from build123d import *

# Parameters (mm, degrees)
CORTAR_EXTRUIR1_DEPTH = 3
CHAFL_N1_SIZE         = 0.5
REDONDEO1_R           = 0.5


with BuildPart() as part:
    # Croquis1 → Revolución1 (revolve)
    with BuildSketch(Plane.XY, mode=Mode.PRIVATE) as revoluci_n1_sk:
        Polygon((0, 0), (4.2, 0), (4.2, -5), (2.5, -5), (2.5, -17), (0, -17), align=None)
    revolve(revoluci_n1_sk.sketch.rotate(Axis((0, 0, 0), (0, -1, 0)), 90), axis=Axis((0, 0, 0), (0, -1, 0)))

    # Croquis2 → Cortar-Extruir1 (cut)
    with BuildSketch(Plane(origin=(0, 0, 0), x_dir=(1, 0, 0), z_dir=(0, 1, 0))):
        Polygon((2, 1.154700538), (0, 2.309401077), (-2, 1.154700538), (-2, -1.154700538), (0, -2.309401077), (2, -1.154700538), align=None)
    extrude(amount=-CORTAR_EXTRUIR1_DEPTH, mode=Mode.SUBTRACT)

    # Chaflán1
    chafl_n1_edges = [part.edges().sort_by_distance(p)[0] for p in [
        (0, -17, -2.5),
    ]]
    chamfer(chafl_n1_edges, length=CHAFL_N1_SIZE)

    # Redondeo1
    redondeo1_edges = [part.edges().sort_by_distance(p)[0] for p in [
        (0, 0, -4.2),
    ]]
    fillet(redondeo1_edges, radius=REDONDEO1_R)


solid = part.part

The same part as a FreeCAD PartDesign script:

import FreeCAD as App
import Part
import Sketcher
Q = App.Units.Quantity


def edges_at(feature, points):
    """Names of the edges that pass closest to the given points."""
    edges = feature.Shape.Edges
    near = lambda p: min(range(len(edges)), key=lambda i: edges[i].distToShape(Part.Vertex(*p))[0])
    return sorted({f"Edge{near(p) + 1}" for p in points})

doc = App.newDocument("Part")
params = doc.addObject("Spreadsheet::Sheet", "Params")
for row, (alias, value) in enumerate([
    ("sketch1_height", "17 mm"),
    ("sketch1_height2", "12 mm"),
    ("sketch1_width", "4.2 mm"),
    ("sketch1_width2", "2.5 mm"),
    ("revolution_angle", "360 deg"),
    ("pocket1_length", "3 mm"),
    ("chamfer_size", "0.5 mm"),
    ("fillet_radius", "0.5 mm"),
], start=1):
    params.set(f"A{row}", alias)
    params.set(f"B{row}", "=" + value)
    params.setAlias(f"B{row}", alias)

body = doc.addObject("PartDesign::Body", "Body")

sketch1 = body.newObject("Sketcher::SketchObject", "Sketch")
sketch1.AttachmentSupport = (doc.getObject("XY_Plane"), [""])
sketch1.MapMode = "FlatFace"
sketch1.addGeometry(Part.LineSegment(App.Vector(4.2, 0, 0), App.Vector(0, 0, 0)), False)
sketch1.addGeometry(Part.LineSegment(App.Vector(0, 0, 0), App.Vector(0, -17, 0)), False)
sketch1.addGeometry(Part.LineSegment(App.Vector(0, -17, 0), App.Vector(2.5, -17, 0)), False)
sketch1.addGeometry(Part.LineSegment(App.Vector(2.5, -17, 0), App.Vector(2.5, -5, 0)), False)
sketch1.addGeometry(Part.LineSegment(App.Vector(2.5, -5, 0), App.Vector(4.2, -5, 0)), False)
sketch1.addGeometry(Part.LineSegment(App.Vector(4.2, -5, 0), App.Vector(4.2, 0, 0)), False)
sketch1.addConstraint(Sketcher.Constraint("Coincident", 0, 2, 1, 1))
sketch1.addConstraint(Sketcher.Constraint("Coincident", 1, 2, 2, 1))
sketch1.addConstraint(Sketcher.Constraint("Coincident", 2, 2, 3, 1))
sketch1.addConstraint(Sketcher.Constraint("Coincident", 3, 2, 4, 1))
sketch1.addConstraint(Sketcher.Constraint("Coincident", 4, 2, 5, 1))
sketch1.addConstraint(Sketcher.Constraint("Coincident", 5, 2, 0, 1))
sketch1.addConstraint(Sketcher.Constraint("Horizontal", 0))
sketch1.addConstraint(Sketcher.Constraint("Vertical", 1))
sketch1.addConstraint(Sketcher.Constraint("Horizontal", 2))
sketch1.addConstraint(Sketcher.Constraint("Vertical", 3))
sketch1.addConstraint(Sketcher.Constraint("Horizontal", 4))
sketch1.addConstraint(Sketcher.Constraint("Vertical", 5))
sketch1.addConstraint(Sketcher.Constraint("Coincident", 0, 2, -1, 1))
sketch1.addConstraint(Sketcher.Constraint("DistanceY", 1, 2, 1, 1, Q("17 mm")))
sketch1.addConstraint(Sketcher.Constraint("DistanceY", 3, 1, 3, 2, Q("12 mm")))
sketch1.addConstraint(Sketcher.Constraint("DistanceX", 0, 2, 0, 1, Q("4.2 mm")))
sketch1.addConstraint(Sketcher.Constraint("DistanceX", 2, 1, 2, 2, Q("2.5 mm")))
sketch1.setExpression("Constraints[13]", "Params.sketch1_height")
sketch1.setExpression("Constraints[14]", "Params.sketch1_height2")
sketch1.setExpression("Constraints[15]", "Params.sketch1_width")
sketch1.setExpression("Constraints[16]", "Params.sketch1_width2")
revolution = body.newObject("PartDesign::Revolution", "Revolution")
revolution.Profile = sketch1
revolution.ReferenceAxis = (sketch1, ["V_Axis"])
revolution.setExpression("Angle", "Params.revolution_angle")

sketch2 = body.newObject("Sketcher::SketchObject", "Sketch001")
sketch2.AttachmentSupport = (doc.getObject("XZ_Plane"), [""])
sketch2.MapMode = "FlatFace"
sketch2.addGeometry(Part.LineSegment(App.Vector(2, -1.2, 0), App.Vector(0, -2.3, 0)), False)
sketch2.addGeometry(Part.LineSegment(App.Vector(0, -2.3, 0), App.Vector(-2, -1.2, 0)), False)
sketch2.addGeometry(Part.LineSegment(App.Vector(-2, -1.2, 0), App.Vector(-2, 1.2, 0)), False)
sketch2.addGeometry(Part.LineSegment(App.Vector(-2, 1.2, 0), App.Vector(0, 2.3, 0)), False)
sketch2.addGeometry(Part.LineSegment(App.Vector(0, 2.3, 0), App.Vector(2, 1.2, 0)), False)
sketch2.addGeometry(Part.LineSegment(App.Vector(2, 1.2, 0), App.Vector(2, -1.2, 0)), False)
sketch2.addConstraint(Sketcher.Constraint("Coincident", 0, 2, 1, 1))
sketch2.addConstraint(Sketcher.Constraint("Coincident", 1, 2, 2, 1))
sketch2.addConstraint(Sketcher.Constraint("Coincident", 2, 2, 3, 1))
sketch2.addConstraint(Sketcher.Constraint("Coincident", 3, 2, 4, 1))
sketch2.addConstraint(Sketcher.Constraint("Coincident", 4, 2, 5, 1))
sketch2.addConstraint(Sketcher.Constraint("Coincident", 5, 2, 0, 1))
sketch2.addConstraint(Sketcher.Constraint("Vertical", 2))
sketch2.addConstraint(Sketcher.Constraint("Vertical", 5))
sketch2.addConstraint(Sketcher.Constraint("Symmetric", 0, 2, 3, 2, -1, 1))
sketch2.addConstraint(Sketcher.Constraint("Symmetric", 1, 2, 4, 2, -1, 1))
sketch2.addConstraint(Sketcher.Constraint("PointOnObject", 0, 2, -2))
sketch2.addConstraint(Sketcher.Constraint("Parallel", 0, 3))
sketch2.addConstraint(Sketcher.Constraint("Horizontal", 2, 2, 4, 2))
sketch2.addConstraint(Sketcher.Constraint("Angle", 0, Q("-150 deg")))
sketch2.addConstraint(Sketcher.Constraint("DistanceX", 1, 2, -1, 1, Q("2 mm")))
sketch2.addConstraint(Sketcher.Constraint("DistanceY", 2, 1, 2, 2, Q("2.309401 mm")))
pocket1 = body.newObject("PartDesign::Pocket", "Pocket")
pocket1.Profile = sketch2
pocket1.setExpression("Length", "Params.pocket1_length")
pocket1.Reversed = True
doc.recompute()

chamfer = body.newObject("PartDesign::Chamfer", "Chamfer")
chamfer.Base = (pocket1, edges_at(pocket1, [(0, -17, -2.5)]))
chamfer.setExpression("Size", "Params.chamfer_size")
doc.recompute()

fillet = body.newObject("PartDesign::Fillet", "Fillet")
fillet.Base = (chamfer, edges_at(chamfer, [(0, 0, -4.2)]))
fillet.setExpression("Radius", "Params.fillet_radius")

doc.recompute()
